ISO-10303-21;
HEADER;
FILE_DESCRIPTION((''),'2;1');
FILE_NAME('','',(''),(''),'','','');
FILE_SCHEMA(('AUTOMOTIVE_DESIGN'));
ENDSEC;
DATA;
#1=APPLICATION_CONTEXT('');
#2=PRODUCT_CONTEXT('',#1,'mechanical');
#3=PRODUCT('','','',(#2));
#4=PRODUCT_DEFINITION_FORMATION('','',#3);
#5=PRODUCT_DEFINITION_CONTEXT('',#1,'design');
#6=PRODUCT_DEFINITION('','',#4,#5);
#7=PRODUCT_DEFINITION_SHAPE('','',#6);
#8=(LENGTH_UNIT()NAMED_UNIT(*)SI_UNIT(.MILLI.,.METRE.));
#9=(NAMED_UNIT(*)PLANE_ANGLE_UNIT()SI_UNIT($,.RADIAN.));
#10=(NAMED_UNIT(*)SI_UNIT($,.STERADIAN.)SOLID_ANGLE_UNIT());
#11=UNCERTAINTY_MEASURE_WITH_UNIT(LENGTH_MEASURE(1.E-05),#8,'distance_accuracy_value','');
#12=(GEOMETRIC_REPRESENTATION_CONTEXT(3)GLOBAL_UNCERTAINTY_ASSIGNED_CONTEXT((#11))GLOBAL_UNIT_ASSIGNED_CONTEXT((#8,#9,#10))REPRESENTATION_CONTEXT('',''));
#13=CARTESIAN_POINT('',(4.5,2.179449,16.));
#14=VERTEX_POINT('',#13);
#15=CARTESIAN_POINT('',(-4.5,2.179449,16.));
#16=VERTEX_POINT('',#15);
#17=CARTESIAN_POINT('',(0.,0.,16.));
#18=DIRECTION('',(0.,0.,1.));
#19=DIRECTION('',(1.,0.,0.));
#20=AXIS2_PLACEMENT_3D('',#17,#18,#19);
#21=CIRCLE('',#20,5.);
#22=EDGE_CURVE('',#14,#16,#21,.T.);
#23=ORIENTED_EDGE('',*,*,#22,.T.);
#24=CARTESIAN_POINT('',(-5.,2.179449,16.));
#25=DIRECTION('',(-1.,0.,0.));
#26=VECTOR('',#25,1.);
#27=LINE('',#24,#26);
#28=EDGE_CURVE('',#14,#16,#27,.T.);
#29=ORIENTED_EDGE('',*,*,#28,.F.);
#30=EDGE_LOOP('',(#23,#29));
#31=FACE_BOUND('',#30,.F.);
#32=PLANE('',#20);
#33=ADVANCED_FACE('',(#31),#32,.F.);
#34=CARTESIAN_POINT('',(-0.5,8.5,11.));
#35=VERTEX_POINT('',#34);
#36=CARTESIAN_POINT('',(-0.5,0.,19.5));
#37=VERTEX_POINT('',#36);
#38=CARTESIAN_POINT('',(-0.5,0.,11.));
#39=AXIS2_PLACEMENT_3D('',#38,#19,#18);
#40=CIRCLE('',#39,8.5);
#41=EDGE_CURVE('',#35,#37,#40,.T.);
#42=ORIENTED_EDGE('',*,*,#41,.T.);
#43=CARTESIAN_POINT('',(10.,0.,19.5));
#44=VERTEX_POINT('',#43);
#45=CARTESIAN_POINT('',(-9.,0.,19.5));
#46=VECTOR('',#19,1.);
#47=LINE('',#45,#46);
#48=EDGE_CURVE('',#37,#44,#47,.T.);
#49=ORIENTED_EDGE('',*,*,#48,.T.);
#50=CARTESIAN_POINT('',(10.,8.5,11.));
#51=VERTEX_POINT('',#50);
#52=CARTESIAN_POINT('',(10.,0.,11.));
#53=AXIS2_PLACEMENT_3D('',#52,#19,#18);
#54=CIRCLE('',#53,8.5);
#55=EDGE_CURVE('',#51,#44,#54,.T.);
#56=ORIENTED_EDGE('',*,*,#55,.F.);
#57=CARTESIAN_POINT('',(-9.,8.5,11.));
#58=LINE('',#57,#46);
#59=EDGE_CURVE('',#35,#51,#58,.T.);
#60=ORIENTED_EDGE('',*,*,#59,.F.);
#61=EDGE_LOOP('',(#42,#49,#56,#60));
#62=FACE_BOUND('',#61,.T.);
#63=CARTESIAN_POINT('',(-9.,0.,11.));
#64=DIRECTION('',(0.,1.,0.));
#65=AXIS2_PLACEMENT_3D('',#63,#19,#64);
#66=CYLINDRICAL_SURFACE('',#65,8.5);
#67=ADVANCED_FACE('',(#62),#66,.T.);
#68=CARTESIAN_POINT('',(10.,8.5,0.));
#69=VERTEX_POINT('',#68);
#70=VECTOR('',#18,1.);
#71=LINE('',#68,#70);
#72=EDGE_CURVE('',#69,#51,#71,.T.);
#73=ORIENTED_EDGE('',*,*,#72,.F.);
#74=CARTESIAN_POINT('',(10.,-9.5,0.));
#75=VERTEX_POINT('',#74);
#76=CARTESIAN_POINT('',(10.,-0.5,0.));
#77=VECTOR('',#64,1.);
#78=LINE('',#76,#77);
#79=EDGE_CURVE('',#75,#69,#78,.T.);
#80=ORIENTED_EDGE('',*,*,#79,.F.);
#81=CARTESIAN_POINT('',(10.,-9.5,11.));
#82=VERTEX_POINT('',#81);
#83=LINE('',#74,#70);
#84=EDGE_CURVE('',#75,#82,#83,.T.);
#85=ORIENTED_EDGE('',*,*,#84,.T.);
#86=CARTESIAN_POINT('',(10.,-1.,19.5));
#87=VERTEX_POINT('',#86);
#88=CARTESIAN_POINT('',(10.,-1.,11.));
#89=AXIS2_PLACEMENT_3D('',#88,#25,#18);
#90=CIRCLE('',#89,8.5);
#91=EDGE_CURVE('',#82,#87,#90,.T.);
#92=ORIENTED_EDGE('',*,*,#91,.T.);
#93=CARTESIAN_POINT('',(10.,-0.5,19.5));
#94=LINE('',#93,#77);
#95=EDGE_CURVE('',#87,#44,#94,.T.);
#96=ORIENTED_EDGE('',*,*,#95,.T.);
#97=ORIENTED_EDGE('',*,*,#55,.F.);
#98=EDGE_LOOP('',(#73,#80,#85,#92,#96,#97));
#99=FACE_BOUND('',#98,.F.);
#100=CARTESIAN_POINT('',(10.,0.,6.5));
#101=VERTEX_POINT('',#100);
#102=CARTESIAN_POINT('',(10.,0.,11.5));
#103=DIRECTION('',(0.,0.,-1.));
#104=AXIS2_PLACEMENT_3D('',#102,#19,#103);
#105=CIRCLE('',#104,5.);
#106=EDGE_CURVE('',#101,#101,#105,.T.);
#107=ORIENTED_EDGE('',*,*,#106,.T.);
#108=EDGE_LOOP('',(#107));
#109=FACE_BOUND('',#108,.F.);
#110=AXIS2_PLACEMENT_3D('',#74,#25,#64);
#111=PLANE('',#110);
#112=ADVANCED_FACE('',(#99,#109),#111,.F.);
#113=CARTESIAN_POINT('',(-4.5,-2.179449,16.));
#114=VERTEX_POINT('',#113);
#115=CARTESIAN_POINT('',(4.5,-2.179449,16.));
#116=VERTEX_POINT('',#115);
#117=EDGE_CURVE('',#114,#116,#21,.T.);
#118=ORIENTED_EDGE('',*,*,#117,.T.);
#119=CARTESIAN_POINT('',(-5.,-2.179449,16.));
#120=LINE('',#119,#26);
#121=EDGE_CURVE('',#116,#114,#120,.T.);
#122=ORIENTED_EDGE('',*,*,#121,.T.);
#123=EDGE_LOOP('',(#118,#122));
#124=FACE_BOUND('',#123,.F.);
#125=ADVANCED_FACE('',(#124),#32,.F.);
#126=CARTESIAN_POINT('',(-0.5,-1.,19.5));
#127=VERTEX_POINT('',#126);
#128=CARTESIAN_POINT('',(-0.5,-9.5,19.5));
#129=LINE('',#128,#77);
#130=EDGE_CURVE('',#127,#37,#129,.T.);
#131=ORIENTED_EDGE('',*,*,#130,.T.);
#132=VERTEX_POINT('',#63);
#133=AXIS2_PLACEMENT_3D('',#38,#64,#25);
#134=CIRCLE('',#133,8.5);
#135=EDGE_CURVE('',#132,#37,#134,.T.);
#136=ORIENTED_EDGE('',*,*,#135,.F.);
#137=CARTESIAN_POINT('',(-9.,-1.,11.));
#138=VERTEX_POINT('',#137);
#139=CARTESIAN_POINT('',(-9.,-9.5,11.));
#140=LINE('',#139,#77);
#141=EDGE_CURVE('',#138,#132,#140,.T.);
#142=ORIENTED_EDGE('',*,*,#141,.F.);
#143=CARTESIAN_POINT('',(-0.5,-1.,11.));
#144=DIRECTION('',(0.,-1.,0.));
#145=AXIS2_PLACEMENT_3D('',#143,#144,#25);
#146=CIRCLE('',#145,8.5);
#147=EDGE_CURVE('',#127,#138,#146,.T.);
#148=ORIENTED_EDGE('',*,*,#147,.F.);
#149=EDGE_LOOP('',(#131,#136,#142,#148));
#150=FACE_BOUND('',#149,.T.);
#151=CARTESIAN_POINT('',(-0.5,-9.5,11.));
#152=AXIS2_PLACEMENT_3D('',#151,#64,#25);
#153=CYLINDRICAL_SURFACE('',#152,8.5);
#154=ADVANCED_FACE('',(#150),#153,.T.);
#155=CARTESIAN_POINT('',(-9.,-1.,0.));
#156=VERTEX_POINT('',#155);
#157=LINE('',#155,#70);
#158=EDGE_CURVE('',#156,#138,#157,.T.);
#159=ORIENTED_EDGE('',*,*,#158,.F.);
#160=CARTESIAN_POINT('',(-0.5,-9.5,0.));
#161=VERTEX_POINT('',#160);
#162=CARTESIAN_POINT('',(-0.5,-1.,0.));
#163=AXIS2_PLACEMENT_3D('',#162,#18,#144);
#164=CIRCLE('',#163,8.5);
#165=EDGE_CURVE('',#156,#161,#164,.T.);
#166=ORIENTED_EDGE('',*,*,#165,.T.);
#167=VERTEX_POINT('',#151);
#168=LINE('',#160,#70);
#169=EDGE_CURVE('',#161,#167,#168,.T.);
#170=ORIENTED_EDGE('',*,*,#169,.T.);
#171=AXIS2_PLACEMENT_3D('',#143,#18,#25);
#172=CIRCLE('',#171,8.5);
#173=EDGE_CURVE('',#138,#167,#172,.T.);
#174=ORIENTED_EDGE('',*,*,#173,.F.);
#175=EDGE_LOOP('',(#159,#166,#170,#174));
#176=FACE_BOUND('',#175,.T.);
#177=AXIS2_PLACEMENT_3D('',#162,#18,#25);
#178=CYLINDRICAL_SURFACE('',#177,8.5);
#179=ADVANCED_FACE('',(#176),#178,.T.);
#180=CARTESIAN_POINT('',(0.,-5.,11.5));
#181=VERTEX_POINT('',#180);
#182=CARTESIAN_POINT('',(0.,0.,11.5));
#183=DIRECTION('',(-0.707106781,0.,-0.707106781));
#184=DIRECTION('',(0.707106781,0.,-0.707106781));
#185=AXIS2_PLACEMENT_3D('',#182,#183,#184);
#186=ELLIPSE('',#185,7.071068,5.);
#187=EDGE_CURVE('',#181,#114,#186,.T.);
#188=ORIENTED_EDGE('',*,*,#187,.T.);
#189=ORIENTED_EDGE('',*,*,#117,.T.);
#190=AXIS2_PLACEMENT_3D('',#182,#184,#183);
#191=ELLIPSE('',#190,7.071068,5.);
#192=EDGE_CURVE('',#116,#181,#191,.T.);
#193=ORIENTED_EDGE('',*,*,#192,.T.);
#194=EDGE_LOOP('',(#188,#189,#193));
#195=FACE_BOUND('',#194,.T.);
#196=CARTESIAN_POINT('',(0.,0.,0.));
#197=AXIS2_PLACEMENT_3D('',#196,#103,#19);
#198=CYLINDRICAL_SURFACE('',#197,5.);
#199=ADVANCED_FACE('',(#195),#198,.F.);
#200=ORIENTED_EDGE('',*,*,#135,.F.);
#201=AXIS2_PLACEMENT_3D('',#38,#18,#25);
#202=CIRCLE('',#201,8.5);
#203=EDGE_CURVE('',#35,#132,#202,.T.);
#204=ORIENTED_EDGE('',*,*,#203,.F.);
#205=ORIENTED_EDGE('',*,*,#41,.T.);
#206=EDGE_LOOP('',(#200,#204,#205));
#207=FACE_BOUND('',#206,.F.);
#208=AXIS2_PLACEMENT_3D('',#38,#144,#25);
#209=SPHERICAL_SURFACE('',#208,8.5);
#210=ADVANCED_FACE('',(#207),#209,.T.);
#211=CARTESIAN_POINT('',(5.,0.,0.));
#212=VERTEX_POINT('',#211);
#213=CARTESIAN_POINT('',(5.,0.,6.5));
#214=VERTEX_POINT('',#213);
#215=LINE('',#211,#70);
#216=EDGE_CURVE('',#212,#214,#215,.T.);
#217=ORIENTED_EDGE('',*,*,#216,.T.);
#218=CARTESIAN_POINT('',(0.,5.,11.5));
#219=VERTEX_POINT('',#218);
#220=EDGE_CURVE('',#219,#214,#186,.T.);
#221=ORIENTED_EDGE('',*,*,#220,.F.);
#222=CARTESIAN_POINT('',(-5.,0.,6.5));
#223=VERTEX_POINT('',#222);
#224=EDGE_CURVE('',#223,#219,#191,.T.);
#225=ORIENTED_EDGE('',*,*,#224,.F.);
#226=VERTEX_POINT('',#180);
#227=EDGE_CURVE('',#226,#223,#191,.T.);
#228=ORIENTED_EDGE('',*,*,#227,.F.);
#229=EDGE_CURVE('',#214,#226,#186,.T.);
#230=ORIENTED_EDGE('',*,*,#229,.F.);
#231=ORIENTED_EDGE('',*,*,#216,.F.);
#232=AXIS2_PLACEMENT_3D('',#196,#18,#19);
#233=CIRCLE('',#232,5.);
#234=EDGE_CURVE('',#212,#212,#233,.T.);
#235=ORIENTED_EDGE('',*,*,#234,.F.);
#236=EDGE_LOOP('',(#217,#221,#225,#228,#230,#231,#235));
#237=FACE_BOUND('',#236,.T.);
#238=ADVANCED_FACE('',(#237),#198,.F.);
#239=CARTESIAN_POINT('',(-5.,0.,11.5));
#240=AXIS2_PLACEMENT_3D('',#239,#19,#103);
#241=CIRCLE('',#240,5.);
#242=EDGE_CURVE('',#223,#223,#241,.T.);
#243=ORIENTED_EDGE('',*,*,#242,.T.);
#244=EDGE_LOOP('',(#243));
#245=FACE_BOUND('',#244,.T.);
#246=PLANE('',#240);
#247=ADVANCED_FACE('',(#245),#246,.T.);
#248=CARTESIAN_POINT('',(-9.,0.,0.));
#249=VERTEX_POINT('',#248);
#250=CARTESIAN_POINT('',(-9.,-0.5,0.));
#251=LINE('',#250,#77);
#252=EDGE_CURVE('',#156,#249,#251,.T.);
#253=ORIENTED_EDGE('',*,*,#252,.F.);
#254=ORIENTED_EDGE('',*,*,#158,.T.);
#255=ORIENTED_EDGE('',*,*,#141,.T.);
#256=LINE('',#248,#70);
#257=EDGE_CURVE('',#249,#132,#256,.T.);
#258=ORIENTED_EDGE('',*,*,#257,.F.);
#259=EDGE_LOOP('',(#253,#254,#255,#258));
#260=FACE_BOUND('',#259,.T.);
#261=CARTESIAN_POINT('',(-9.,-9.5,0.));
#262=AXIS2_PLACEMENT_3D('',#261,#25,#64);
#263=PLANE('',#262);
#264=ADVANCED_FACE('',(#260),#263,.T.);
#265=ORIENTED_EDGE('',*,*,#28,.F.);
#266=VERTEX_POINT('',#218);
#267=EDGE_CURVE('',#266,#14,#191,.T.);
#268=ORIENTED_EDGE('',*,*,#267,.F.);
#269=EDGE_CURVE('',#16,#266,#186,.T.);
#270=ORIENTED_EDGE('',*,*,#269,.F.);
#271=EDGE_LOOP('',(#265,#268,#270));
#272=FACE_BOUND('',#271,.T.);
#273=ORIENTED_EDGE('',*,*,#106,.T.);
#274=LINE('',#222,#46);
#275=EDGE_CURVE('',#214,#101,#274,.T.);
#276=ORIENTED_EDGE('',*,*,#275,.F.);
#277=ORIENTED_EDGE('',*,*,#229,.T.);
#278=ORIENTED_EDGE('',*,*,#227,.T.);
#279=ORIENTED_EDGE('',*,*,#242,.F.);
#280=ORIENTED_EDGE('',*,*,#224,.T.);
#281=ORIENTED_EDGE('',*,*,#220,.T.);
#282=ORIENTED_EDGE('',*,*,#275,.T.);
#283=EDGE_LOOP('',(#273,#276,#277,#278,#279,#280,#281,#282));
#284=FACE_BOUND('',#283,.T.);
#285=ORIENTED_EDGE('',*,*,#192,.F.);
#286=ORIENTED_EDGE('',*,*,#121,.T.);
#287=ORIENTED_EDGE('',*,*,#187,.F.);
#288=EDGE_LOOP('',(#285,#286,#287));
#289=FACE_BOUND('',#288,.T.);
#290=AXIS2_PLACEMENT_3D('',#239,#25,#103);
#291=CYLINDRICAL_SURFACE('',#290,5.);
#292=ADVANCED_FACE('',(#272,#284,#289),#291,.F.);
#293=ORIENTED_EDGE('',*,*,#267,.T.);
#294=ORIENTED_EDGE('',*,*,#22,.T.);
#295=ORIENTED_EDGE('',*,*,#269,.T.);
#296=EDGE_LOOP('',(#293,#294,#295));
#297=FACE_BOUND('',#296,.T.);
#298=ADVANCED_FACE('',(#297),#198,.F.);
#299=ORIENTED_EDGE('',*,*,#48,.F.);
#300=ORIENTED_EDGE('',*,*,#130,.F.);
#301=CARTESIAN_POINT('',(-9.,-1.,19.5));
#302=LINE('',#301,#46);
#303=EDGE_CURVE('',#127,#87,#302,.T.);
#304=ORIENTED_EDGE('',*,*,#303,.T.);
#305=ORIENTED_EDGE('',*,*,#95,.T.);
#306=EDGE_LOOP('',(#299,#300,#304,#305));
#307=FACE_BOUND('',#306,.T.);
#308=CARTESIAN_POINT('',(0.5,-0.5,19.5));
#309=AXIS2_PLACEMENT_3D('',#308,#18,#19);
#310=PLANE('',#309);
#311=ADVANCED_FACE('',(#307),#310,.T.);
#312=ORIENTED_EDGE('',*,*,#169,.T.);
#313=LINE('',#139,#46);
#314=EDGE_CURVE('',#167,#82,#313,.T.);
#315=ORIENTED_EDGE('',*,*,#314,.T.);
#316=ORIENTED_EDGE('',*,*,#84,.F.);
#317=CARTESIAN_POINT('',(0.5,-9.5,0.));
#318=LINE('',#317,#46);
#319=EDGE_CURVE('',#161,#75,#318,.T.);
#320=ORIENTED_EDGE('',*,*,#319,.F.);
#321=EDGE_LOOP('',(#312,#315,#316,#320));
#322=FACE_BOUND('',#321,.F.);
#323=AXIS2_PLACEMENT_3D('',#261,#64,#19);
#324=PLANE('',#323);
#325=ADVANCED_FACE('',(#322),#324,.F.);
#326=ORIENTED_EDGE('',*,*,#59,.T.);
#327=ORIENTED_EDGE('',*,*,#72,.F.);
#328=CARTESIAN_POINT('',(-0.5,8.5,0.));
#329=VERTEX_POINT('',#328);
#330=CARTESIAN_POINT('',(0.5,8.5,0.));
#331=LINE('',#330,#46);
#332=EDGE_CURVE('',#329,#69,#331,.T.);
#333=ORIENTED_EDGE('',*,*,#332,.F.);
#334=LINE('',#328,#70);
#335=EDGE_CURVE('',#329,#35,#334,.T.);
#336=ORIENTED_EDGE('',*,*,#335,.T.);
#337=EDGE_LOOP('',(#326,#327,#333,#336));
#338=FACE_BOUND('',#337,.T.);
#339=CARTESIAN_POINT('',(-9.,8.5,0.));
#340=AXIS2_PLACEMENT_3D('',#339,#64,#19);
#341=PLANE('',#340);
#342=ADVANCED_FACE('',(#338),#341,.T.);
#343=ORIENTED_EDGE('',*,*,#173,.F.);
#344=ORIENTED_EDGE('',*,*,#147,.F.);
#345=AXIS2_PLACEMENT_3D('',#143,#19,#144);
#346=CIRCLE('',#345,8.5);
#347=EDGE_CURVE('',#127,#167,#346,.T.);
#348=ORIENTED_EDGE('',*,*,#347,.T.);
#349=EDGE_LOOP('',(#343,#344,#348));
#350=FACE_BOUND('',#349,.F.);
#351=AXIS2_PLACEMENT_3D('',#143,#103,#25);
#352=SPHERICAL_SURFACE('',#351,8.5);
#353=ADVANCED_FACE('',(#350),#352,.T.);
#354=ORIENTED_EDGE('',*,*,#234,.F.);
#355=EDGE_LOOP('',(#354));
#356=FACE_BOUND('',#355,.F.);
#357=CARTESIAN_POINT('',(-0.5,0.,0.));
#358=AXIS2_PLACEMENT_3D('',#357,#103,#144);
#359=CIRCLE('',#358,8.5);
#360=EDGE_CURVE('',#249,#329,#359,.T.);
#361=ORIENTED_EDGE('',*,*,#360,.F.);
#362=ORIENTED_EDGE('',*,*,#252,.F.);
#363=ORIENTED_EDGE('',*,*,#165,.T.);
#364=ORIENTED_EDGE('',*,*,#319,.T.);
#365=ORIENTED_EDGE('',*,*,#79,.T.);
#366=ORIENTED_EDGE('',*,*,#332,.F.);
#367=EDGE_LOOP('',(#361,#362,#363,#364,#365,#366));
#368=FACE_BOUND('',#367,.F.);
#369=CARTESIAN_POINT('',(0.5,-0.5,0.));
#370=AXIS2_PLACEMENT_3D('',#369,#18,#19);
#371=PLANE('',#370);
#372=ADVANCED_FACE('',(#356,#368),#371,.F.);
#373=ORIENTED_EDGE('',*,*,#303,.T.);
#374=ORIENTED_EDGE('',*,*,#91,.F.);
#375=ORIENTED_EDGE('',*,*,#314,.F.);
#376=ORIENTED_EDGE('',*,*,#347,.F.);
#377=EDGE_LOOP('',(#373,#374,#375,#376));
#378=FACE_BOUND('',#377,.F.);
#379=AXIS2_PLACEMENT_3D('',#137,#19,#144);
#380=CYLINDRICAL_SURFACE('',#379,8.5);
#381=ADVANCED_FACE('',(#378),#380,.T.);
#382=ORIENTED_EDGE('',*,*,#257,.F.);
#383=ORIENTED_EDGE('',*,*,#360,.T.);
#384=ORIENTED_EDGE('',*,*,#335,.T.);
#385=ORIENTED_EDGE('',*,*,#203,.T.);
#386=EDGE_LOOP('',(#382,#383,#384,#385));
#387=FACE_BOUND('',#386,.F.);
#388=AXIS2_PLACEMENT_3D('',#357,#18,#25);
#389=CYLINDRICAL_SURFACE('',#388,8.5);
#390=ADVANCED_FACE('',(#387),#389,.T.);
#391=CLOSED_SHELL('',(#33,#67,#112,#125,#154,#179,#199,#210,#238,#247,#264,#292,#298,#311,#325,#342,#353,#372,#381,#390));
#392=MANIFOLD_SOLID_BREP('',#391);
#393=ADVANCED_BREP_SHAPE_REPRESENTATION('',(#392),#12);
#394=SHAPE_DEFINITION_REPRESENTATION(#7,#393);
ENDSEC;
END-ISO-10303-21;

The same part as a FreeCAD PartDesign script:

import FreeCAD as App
import Part
import Sketcher

V = App.Vector
Q = App.Units.Quantity


def edges_at(feature, points):
    """Names of the edges that pass closest to the given points."""
    edges = feature.Shape.Edges
    near = lambda p: min(range(len(edges)), key=lambda i: edges[i].distToShape(Part.Vertex(*p))[0])
    return sorted({f"Edge{near(p) + 1}" for p in points})


def add_polygon(sketch, points):
    """Adds a closed chain of lines whose ends are joined by coincident constraints."""
    first, n = sketch.GeometryCount, len(points)
    for a, b in zip(points, points[1:] + points[:1]):
        sketch.addGeometry(Part.LineSegment(App.Vector(*a, 0), App.Vector(*b, 0)), False)
    for i in range(n):
        sketch.addConstraint(Sketcher.Constraint("Coincident", first + i, 2, first + (i + 1) % n, 1))

doc = App.newDocument("Part")
params = doc.addObject("Spreadsheet::Sheet", "Params")
for row, (alias, value) in enumerate([
    ("sketch1_diameter", "10 mm"),
    ("pad1_length", "15 mm"),
    ("sketch2_diameter", "10 mm"),
    ("pad2_length", "16 mm"),
    ("sketch3_width", "19 mm"),
    ("sketch3_height", "18 mm"),
    ("pad3_length", "19.5 mm"),
    ("fillet_radius", "8.5 mm"),
], start=1):
    params.set(f"A{row}", alias)
    params.set(f"B{row}", "=" + value)
    params.setAlias(f"B{row}", alias)

body = doc.addObject("PartDesign::Body", "Body")

# Sketch on YZ plane
sketch1 = body.newObject("Sketcher::SketchObject", "Sketch")
sketch1.AttachmentSupport = (doc.getObject("YZ_Plane"), [""])
sketch1.MapMode = "FlatFace"
sketch1.AttachmentOffset = App.Placement(V(0, 0, -5), App.Rotation())
sketch1.addGeometry(Part.Circle(V(0, 12, 0), V(0, 0, 1), 5), False)
sketch1.addConstraint([
    Sketcher.Constraint("PointOnObject", 0, 3, -2),
    Sketcher.Constraint("Diameter", 0, Q("10 mm")),
    Sketcher.Constraint("DistanceY", -1, 1, 0, 3, Q("11.5 mm")),
])
sketch1.setExpression("Constraints[1]", "Params.sketch1_diameter")
pad1 = body.newObject("PartDesign::Pad", "Pad")
pad1.Profile = sketch1
pad1.setExpression("Length", "Params.pad1_length")
body2 = doc.addObject("PartDesign::Body", "Body001")

# Sketch on XY plane
sketch2 = body2.newObject("Sketcher::SketchObject", "Sketch001")
sketch2.AttachmentSupport = (doc.getObject("XY_Plane001"), [""])
sketch2.MapMode = "FlatFace"
sketch2.addGeometry(Part.Circle(V(0, 0, 0), V(0, 0, 1), 5), False)
sketch2.addConstraint([
    Sketcher.Constraint("Coincident", 0, 3, -1, 1),
    Sketcher.Constraint("Diameter", 0, Q("10 mm")),
])
sketch2.setExpression("Constraints[1]", "Params.sketch2_diameter")
pad2 = body2.newObject("PartDesign::Pad", "Pad001")
pad2.Profile = sketch2
pad2.setExpression("Length", "Params.pad2_length")
doc.recompute()

boolean = body2.newObject("PartDesign::Boolean", "Boolean")
boolean.Type = "Fuse"
boolean.addObjects([body])
body3 = doc.addObject("PartDesign::Body", "Body002")

# Sketch on XY plane
sketch3 = body3.newObject("Sketcher::SketchObject", "Sketch002")
sketch3.AttachmentSupport = (doc.getObject("XY_Plane002"), [""])
sketch3.MapMode = "FlatFace"
add_polygon(sketch3, [(-9, 8), (-9, -10), (10, -10), (10, 8)])  # lines 0-3
sketch3.addConstraint([
    Sketcher.Constraint("Vertical", 0),
    Sketcher.Constraint("Horizontal", 1),
    Sketcher.Constraint("Vertical", 2),
    Sketcher.Constraint("Horizontal", 3),
    Sketcher.Constraint("DistanceX", 1, 1, 1, 2, Q("19 mm")),
    Sketcher.Constraint("DistanceY", 0, 2, 0, 1, Q("18 mm")),
    Sketcher.Constraint("DistanceX", 0, 2, -1, 1, Q("9 mm")),
    Sketcher.Constraint("DistanceY", 0, 2, -1, 1, Q("9.5 mm")),
])
sketch3.setExpression("Constraints[8]", "Params.sketch3_width")
sketch3.setExpression("Constraints[9]", "Params.sketch3_height")
pad3 = body3.newObject("PartDesign::Pad", "Pad002")
pad3.Profile = sketch3
pad3.setExpression("Length", "Params.pad3_length")
doc.recompute()

fillet = body3.newObject("PartDesign::Fillet", "Fillet")
fillet.Base = (pad3, edges_at(pad3, [
    (-9, -9.5, 9.75),
    (-9, -0.5, 19.5),
    (-9, 8.5, 9.75),
    (0.5, -9.5, 19.5),
    (0.5, 8.5, 19.5),
]))
fillet.setExpression("Radius", "Params.fillet_radius")
doc.recompute()

boolean2 = body3.newObject("PartDesign::Boolean", "Boolean001")
boolean2.Type = "Cut"
boolean2.addObjects([body2])

doc.recompute()
